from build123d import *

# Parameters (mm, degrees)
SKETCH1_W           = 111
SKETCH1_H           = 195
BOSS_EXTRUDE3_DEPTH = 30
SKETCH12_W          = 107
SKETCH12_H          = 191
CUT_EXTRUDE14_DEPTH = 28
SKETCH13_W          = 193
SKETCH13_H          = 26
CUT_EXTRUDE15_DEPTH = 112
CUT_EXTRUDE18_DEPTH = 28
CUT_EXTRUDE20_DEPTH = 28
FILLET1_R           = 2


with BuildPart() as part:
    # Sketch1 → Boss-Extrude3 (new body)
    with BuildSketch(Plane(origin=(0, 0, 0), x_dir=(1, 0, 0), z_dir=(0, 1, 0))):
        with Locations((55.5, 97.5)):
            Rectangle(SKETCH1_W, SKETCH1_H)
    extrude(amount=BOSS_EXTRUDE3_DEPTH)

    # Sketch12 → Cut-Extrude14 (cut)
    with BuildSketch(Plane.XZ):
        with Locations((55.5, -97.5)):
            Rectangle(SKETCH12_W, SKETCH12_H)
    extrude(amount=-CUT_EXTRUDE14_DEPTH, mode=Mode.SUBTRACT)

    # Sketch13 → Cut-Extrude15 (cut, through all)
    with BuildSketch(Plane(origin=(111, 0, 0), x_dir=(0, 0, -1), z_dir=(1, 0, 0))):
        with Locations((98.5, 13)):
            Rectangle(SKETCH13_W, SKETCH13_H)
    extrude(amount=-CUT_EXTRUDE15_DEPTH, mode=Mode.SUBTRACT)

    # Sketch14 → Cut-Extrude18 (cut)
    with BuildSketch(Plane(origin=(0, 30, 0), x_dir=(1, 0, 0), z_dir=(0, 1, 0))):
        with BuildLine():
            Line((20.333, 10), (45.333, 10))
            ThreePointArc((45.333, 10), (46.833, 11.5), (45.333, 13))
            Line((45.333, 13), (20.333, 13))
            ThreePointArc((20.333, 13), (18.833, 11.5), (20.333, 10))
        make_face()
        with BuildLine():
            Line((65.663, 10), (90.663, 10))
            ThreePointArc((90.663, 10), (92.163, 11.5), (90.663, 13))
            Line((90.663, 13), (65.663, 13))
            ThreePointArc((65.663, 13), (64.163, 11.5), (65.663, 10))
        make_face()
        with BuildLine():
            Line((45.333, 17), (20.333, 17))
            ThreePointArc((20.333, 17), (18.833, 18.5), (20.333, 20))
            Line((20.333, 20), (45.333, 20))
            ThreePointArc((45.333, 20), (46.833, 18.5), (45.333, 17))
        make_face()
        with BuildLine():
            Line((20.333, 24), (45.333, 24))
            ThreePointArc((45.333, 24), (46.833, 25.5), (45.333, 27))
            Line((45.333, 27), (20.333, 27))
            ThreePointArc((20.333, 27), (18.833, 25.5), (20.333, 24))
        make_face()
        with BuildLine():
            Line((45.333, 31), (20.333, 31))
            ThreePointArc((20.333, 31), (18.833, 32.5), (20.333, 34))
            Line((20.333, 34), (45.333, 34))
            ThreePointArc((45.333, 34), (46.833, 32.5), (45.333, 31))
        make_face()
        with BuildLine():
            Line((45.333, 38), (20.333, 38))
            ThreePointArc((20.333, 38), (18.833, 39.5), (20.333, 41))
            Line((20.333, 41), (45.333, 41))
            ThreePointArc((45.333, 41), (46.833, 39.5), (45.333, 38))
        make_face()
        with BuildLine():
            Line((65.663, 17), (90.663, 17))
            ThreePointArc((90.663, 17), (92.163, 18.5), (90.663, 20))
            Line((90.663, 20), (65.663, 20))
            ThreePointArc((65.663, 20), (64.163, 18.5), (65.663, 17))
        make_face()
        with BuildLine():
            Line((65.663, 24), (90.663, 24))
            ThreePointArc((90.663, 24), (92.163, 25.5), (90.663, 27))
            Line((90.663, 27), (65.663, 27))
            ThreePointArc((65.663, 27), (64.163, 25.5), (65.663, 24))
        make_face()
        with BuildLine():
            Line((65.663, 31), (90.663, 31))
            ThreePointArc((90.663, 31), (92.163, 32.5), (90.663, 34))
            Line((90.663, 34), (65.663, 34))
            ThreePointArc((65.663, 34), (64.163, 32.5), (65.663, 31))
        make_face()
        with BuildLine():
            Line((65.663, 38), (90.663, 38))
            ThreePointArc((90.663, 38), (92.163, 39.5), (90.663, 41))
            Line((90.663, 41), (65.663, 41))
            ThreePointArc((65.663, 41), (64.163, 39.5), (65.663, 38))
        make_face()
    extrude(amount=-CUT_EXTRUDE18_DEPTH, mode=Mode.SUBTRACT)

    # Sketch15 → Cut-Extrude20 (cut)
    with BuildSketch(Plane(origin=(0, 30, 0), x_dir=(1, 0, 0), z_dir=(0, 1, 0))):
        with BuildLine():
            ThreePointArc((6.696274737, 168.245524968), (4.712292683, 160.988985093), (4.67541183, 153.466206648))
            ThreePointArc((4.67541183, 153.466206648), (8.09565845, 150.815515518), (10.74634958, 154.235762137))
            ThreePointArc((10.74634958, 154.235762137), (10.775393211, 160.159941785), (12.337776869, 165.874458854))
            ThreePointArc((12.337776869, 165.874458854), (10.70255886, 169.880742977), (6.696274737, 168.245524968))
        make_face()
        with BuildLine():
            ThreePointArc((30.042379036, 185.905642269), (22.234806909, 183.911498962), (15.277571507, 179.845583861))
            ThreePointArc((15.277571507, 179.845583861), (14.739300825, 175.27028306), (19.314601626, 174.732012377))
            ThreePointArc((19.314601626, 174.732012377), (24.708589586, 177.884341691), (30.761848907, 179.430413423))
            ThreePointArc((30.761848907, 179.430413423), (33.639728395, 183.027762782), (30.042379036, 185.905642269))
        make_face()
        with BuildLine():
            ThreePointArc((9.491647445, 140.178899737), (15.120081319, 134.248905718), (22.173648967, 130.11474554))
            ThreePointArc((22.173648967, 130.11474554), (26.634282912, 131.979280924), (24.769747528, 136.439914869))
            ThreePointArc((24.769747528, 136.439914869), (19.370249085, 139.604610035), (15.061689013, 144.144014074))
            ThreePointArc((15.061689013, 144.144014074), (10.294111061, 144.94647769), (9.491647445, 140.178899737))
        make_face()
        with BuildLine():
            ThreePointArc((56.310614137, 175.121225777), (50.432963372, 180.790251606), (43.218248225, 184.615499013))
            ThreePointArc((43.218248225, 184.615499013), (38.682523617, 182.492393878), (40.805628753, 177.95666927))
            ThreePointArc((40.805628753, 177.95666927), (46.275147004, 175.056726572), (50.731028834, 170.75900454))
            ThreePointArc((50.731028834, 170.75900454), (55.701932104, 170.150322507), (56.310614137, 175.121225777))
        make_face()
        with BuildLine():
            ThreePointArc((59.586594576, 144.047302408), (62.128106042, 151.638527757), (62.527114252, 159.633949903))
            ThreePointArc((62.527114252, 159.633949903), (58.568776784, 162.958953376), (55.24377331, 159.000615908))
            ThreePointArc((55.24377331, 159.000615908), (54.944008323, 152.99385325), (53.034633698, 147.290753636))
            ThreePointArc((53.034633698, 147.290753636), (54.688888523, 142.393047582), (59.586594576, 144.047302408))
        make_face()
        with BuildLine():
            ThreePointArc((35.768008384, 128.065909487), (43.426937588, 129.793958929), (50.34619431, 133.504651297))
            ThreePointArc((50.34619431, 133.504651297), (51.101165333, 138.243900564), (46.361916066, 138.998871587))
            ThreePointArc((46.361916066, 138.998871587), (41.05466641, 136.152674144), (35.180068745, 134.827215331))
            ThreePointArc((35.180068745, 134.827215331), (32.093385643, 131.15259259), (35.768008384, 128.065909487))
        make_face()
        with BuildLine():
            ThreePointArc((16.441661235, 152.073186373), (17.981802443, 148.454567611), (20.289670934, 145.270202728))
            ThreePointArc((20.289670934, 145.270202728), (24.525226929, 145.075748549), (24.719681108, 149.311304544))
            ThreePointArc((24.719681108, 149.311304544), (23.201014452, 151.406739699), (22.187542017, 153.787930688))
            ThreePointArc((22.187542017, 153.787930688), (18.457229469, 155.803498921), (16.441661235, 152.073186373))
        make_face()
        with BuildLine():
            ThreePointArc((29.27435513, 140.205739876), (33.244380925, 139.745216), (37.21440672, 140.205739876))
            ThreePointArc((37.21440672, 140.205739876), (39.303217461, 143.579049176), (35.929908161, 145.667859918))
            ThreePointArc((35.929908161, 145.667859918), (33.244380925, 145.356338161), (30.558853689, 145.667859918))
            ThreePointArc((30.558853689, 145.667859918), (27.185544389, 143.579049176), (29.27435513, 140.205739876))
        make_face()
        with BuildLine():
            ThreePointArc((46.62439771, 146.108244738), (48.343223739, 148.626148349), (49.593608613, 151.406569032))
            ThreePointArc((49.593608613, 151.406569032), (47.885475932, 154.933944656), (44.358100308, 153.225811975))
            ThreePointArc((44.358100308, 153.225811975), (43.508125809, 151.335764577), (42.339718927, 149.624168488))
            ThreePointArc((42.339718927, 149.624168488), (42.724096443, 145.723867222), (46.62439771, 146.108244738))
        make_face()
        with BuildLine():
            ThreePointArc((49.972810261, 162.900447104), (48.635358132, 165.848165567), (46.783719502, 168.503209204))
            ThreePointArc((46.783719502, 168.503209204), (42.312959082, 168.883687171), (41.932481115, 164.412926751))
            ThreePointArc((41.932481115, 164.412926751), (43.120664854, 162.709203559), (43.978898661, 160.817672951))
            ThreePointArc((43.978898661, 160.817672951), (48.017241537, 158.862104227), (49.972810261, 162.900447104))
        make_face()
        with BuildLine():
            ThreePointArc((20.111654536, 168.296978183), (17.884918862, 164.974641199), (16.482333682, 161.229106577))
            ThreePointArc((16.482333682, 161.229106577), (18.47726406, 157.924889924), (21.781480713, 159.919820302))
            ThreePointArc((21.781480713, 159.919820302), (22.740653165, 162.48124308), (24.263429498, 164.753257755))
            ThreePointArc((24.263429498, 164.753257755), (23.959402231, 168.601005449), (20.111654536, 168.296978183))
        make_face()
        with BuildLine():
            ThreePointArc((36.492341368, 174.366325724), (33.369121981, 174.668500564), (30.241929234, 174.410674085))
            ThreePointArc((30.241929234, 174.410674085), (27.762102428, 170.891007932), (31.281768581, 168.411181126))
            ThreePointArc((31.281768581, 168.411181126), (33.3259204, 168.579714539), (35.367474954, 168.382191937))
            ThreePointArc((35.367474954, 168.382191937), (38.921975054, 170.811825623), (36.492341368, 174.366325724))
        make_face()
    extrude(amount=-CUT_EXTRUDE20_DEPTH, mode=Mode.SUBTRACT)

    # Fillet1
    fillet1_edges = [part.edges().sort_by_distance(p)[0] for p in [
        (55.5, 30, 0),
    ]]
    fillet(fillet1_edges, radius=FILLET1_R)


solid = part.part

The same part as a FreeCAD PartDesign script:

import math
import FreeCAD as App
import Part
import Sketcher
from FreeCAD import Vector
Q = App.Units.Quantity


def edges_at(feature, points):
    """Names of the edges that pass closest to the given points."""
    edges = feature.Shape.Edges
    near = lambda p: min(range(len(edges)), key=lambda i: edges[i].distToShape(Part.Vertex(*p))[0])
    return sorted({f"Edge{near(p) + 1}" for p in points})

doc = App.newDocument("Part")
body = doc.addObject("PartDesign::Body", "Body")

# Sketch on XZ plane
sketch1 = body.newObject("Sketcher::SketchObject", "Sketch")
sketch1.AttachmentSupport = (doc.getObject("XZ_Plane"), [""])
sketch1.MapMode = "FlatFace"
sketch1.addGeometry([
    Part.LineSegment(Vector(0, -195, 0), Vector(0, 0, 0)),
    Part.LineSegment(Vector(0, 0, 0), Vector(111, 0, 0)),
    Part.LineSegment(Vector(111, 0, 0), Vector(111, -195, 0)),
    Part.LineSegment(Vector(111, -195, 0), Vector(0, -195, 0)),
], False)
sketch1.addConstraint([
    Sketcher.Constraint("Coincident", 0, 2, 1, 1),
    Sketcher.Constraint("Coincident", 1, 2, 2, 1),
    Sketcher.Constraint("Coincident", 2, 2, 3, 1),
    Sketcher.Constraint("Coincident", 3, 2, 0, 1),
    Sketcher.Constraint("Vertical", 0),
    Sketcher.Constraint("Horizontal", 1),
    Sketcher.Constraint("Vertical", 2),
    Sketcher.Constraint("Horizontal", 3),
    Sketcher.Constraint("Coincident", 0, 2, -1, 1),
    Sketcher.Constraint("DistanceX", 1, 1, 1, 2, Q("111 mm")),
    Sketcher.Constraint("DistanceY", 0, 1, 0, 2, Q("195 mm")),
])
pad1 = body.newObject("PartDesign::Pad", "Pad")
pad1.Profile = sketch1
pad1.Length = 30
pad1.Reversed = True

# Sketch on XZ plane
sketch2 = body.newObject("Sketcher::SketchObject", "Sketch001")
sketch2.AttachmentSupport = (doc.getObject("XZ_Plane"), [""])
sketch2.MapMode = "FlatFace"
sketch2.addGeometry([
    Part.LineSegment(Vector(2, -2, 0), Vector(2, -193, 0)),
    Part.LineSegment(Vector(2, -193, 0), Vector(109, -193, 0)),
    Part.LineSegment(Vector(109, -193, 0), Vector(109, -2, 0)),
    Part.LineSegment(Vector(109, -2, 0), Vector(2, -2, 0)),
], False)
sketch2.addConstraint([
    Sketcher.Constraint("Coincident", 0, 2, 1, 1),
    Sketcher.Constraint("Coincident", 1, 2, 2, 1),
    Sketcher.Constraint("Coincident", 2, 2, 3, 1),
    Sketcher.Constraint("Coincident", 3, 2, 0, 1),
    Sketcher.Constraint("Vertical", 0),
    Sketcher.Constraint("Horizontal", 1),
    Sketcher.Constraint("Vertical", 2),
    Sketcher.Constraint("Horizontal", 3),
    Sketcher.Constraint("DistanceX", 1, 1, 1, 2, Q("107 mm")),
    Sketcher.Constraint("DistanceY", 0, 2, 0, 1, Q("191 mm")),
    Sketcher.Constraint("DistanceX", -1, 1, 0, 2, Q("2 mm")),
    Sketcher.Constraint("DistanceY", 0, 2, -1, 1, Q("193 mm")),
])
pocket1 = body.newObject("PartDesign::Pocket", "Pocket")
pocket1.Profile = sketch2
pocket1.Length = 28

# Sketch on YZ plane
sketch3 = body.newObject("Sketcher::SketchObject", "Sketch002")
sketch3.AttachmentSupport = (doc.getObject("YZ_Plane"), [""])
sketch3.MapMode = "FlatFace"
sketch3.AttachmentOffset = App.Placement(Vector(0, 0, 111), App.Rotation())
sketch3.addGeometry([
    Part.LineSegment(Vector(26, -2, 0), Vector(0, -2, 0)),
    Part.LineSegment(Vector(0, -2, 0), Vector(0, -195, 0)),
    Part.LineSegment(Vector(0, -195, 0), Vector(26, -195, 0)),
    Part.LineSegment(Vector(26, -195, 0), Vector(26, -2, 0)),
], False)
sketch3.addConstraint([
    Sketcher.Constraint("Coincident", 0, 2, 1, 1),
    Sketcher.Constraint("Coincident", 1, 2, 2, 1),
    Sketcher.Constraint("Coincident", 2, 2, 3, 1),
    Sketcher.Constraint("Coincident", 3, 2, 0, 1),
    Sketcher.Constraint("Horizontal", 0),
    Sketcher.Constraint("Vertical", 1),
    Sketcher.Constraint("Horizontal", 2),
    Sketcher.Constraint("Vertical", 3),
    Sketcher.Constraint("PointOnObject", 0, 2, -2),
    Sketcher.Constraint("DistanceX", 0, 2, 0, 1, Q("26 mm")),
    Sketcher.Constraint("DistanceY", 1, 2, 1, 1, Q("193 mm")),
    Sketcher.Constraint("DistanceY", 0, 2, -1, 1, Q("2 mm")),
])
pocket2 = body.newObject("PartDesign::Pocket", "Pocket001")
pocket2.Profile = sketch3
pocket2.Type = "ThroughAll"

# Sketch on XZ plane
sketch4 = body.newObject("Sketcher::SketchObject", "Sketch003")
sketch4.AttachmentSupport = (doc.getObject("XZ_Plane"), [""])
sketch4.MapMode = "FlatFace"
sketch4.AttachmentOffset = App.Placement(Vector(0, 0, -30), App.Rotation())
sketch4.addGeometry([
    Part.LineSegment(Vector(20.333, -10, 0), Vector(45.333, -10, 0)),  # 0
    Part.ArcOfCircle(Part.Circle(Vector(45.333, -11.5, 0), Vector(0, 0, 1), 1.5), math.radians(-90), math.radians(90)),  # 1
    Part.LineSegment(Vector(45.333, -13, 0), Vector(20.333, -13, 0)),  # 2
    Part.ArcOfCircle(Part.Circle(Vector(20.333, -11.5, 0), Vector(0, 0, 1), 1.5), math.radians(90), math.radians(270)),  # 3
    Part.LineSegment(Vector(65.663, -10, 0), Vector(90.663, -10, 0)),  # 4
    Part.ArcOfCircle(Part.Circle(Vector(90.663, -11.5, 0), Vector(0, 0, 1), 1.5), math.radians(-90), math.radians(90)),  # 5
    Part.LineSegment(Vector(90.663, -13, 0), Vector(65.663, -13, 0)),  # 6
    Part.ArcOfCircle(Part.Circle(Vector(65.663, -11.5, 0), Vector(0, 0, 1), 1.5), math.radians(90), math.radians(270)),  # 7
    Part.LineSegment(Vector(20.333, -17, 0), Vector(45.333, -17, 0)),  # 8
    Part.ArcOfCircle(Part.Circle(Vector(45.333, -18.5, 0), Vector(0, 0, 1), 1.5), math.radians(-90), math.radians(90)),  # 9
    Part.LineSegment(Vector(45.333, -20, 0), Vector(20.333, -20, 0)),  # 10
    Part.ArcOfCircle(Part.Circle(Vector(20.333, -18.5, 0), Vector(0, 0, 1), 1.5), math.radians(90), math.radians(270)),  # 11
    Part.LineSegment(Vector(20.333, -24, 0), Vector(45.333, -24, 0)),  # 12
    Part.ArcOfCircle(Part.Circle(Vector(45.333, -25.5, 0), Vector(0, 0, 1), 1.5), math.radians(-90), math.radians(90)),  # 13
    Part.LineSegment(Vector(45.333, -27, 0), Vector(20.333, -27, 0)),  # 14
    Part.ArcOfCircle(Part.Circle(Vector(20.333, -25.5, 0), Vector(0, 0, 1), 1.5), math.radians(90), math.radians(270)),  # 15
    Part.LineSegment(Vector(20.333, -31, 0), Vector(45.333, -31, 0)),  # 16
    Part.ArcOfCircle(Part.Circle(Vector(45.333, -32.5, 0), Vector(0, 0, 1), 1.5), math.radians(-90), math.radians(90)),  # 17
    Part.LineSegment(Vector(45.333, -34, 0), Vector(20.333, -34, 0)),  # 18
    Part.ArcOfCircle(Part.Circle(Vector(20.333, -32.5, 0), Vector(0, 0, 1), 1.5), math.radians(90), math.radians(270)),  # 19
    Part.LineSegment(Vector(20.333, -38, 0), Vector(45.333, -38, 0)),  # 20
    Part.ArcOfCircle(Part.Circle(Vector(45.333, -39.5, 0), Vector(0, 0, 1), 1.5), math.radians(-90), math.radians(90)),  # 21
    Part.LineSegment(Vector(45.333, -41, 0), Vector(20.333, -41, 0)),  # 22
    Part.ArcOfCircle(Part.Circle(Vector(20.333, -39.5, 0), Vector(0, 0, 1), 1.5), math.radians(90), math.radians(270)),  # 23
    Part.LineSegment(Vector(65.663, -17, 0), Vector(90.663, -17, 0)),  # 24
    Part.ArcOfCircle(Part.Circle(Vector(90.663, -18.5, 0), Vector(0, 0, 1), 1.5), math.radians(-90), math.radians(90)),  # 25
    Part.LineSegment(Vector(90.663, -20, 0), Vector(65.663, -20, 0)),  # 26
    Part.ArcOfCircle(Part.Circle(Vector(65.663, -18.5, 0), Vector(0, 0, 1), 1.5), math.radians(90), math.radians(270)),  # 27
    Part.LineSegment(Vector(65.663, -24, 0), Vector(90.663, -24, 0)),  # 28
    Part.ArcOfCircle(Part.Circle(Vector(90.663, -25.5, 0), Vector(0, 0, 1), 1.5), math.radians(-90), math.radians(90)),  # 29
    Part.LineSegment(Vector(90.663, -27, 0), Vector(65.663, -27, 0)),  # 30
    Part.ArcOfCircle(Part.Circle(Vector(65.663, -25.5, 0), Vector(0, 0, 1), 1.5), math.radians(90), math.radians(270)),  # 31
    Part.LineSegment(Vector(65.663, -31, 0), Vector(90.663, -31, 0)),  # 32
    Part.ArcOfCircle(Part.Circle(Vector(90.663, -32.5, 0), Vector(0, 0, 1), 1.5), math.radians(-90), math.radians(90)),  # 33
    Part.LineSegment(Vector(90.663, -34, 0), Vector(65.663, -34, 0)),  # 34
    Part.ArcOfCircle(Part.Circle(Vector(65.663, -32.5, 0), Vector(0, 0, 1), 1.5), math.radians(90), math.radians(270)),  # 35
    Part.LineSegment(Vector(65.663, -38, 0), Vector(90.663, -38, 0)),  # 36
    Part.ArcOfCircle(Part.Circle(Vector(90.663, -39.5, 0), Vector(0, 0, 1), 1.5), math.radians(-90), math.radians(90)),  # 37
    Part.LineSegment(Vector(90.663, -41, 0), Vector(65.663, -41, 0)),  # 38
    Part.ArcOfCircle(Part.Circle(Vector(65.663, -39.5, 0), Vector(0, 0, 1), 1.5), math.radians(90), math.radians(270)),  # 39
], False)
sketch4.addConstraint([
    Sketcher.Constraint("Tangent", 0, 2, 1, 2),
    Sketcher.Constraint("Tangent", 1, 1, 2, 1),
    Sketcher.Constraint("Tangent", 2, 2, 3, 2),
    Sketcher.Constraint("Tangent", 3, 1, 0, 1),
    Sketcher.Constraint("Tangent", 4, 2, 5, 2),
    Sketcher.Constraint("Tangent", 5, 1, 6, 1),
    Sketcher.Constraint("Tangent", 6, 2, 7, 2),
    Sketcher.Constraint("Tangent", 7, 1, 4, 1),
    Sketcher.Constraint("Tangent", 8, 2, 9, 2),
    Sketcher.Constraint("Tangent", 9, 1, 10, 1),
    Sketcher.Constraint("Tangent", 10, 2, 11, 2),
    Sketcher.Constraint("Tangent", 11, 1, 8, 1),
    Sketcher.Constraint("Tangent", 12, 2, 13, 2),
    Sketcher.Constraint("Tangent", 13, 1, 14, 1),
    Sketcher.Constraint("Tangent", 14, 2, 15, 2),
    Sketcher.Constraint("Tangent", 15, 1, 12, 1),
    Sketcher.Constraint("Tangent", 16, 2, 17, 2),
    Sketcher.Constraint("Tangent", 17, 1, 18, 1),
    Sketcher.Constraint("Tangent", 18, 2, 19, 2),
    Sketcher.Constraint("Tangent", 19, 1, 16, 1),
    Sketcher.Constraint("Tangent", 20, 2, 21, 2),
    Sketcher.Constraint("Tangent", 21, 1, 22, 1),
    Sketcher.Constraint("Tangent", 22, 2, 23, 2),
    Sketcher.Constraint("Tangent", 23, 1, 20, 1),
    Sketcher.Constraint("Tangent", 24, 2, 25, 2),
    Sketcher.Constraint("Tangent", 25, 1, 26, 1),
    Sketcher.Constraint("Tangent", 26, 2, 27, 2),
    Sketcher.Constraint("Tangent", 27, 1, 24, 1),
    Sketcher.Constraint("Tangent", 28, 2, 29, 2),
    Sketcher.Constraint("Tangent", 29, 1, 30, 1),
    Sketcher.Constraint("Tangent", 30, 2, 31, 2),
    Sketcher.Constraint("Tangent", 31, 1, 28, 1),
    Sketcher.Constraint("Tangent", 32, 2, 33, 2),
    Sketcher.Constraint("Tangent", 33, 1, 34, 1),
    Sketcher.Constraint("Tangent", 34, 2, 35, 2),
    Sketcher.Constraint("Tangent", 35, 1, 32, 1),
    Sketcher.Constraint("Tangent", 36, 2, 37, 2),
    Sketcher.Constraint("Tangent", 37, 1, 38, 1),
    Sketcher.Constraint("Tangent", 38, 2, 39, 2),
    Sketcher.Constraint("Tangent", 39, 1, 36, 1),
    Sketcher.Constraint("Horizontal", 0),
    Sketcher.Constraint("Horizontal", 2),
    Sketcher.Constraint("Horizontal", 4),
    Sketcher.Constraint("Horizontal", 6),
    Sketcher.Constraint("Horizontal", 8),
    Sketcher.Constraint("Horizontal", 10),
    Sketcher.Constraint("Horizontal", 12),
    Sketcher.Constraint("Horizontal", 14),
    Sketcher.Constraint("Horizontal", 16),
    Sketcher.Constraint("Horizontal", 18),
    Sketcher.Constraint("Horizontal", 20),
    Sketcher.Constraint("Horizontal", 22),
    Sketcher.Constraint("Horizontal", 24),
    Sketcher.Constraint("Horizontal", 26),
    Sketcher.Constraint("Horizontal", 28),
    Sketcher.Constraint("Horizontal", 30),
    Sketcher.Constraint("Horizontal", 32),
    Sketcher.Constraint("Horizontal", 34),
    Sketcher.Constraint("Horizontal", 36),
    Sketcher.Constraint("Horizontal", 38),
    Sketcher.Constraint("Equal", 3, 5),
    Sketcher.Constraint("Equal", 7, 9),
    Sketcher.Constraint("Equal", 11, 13),
    Sketcher.Constraint("Equal", 15, 17),
    Sketcher.Constraint("Equal", 19, 21),
    Sketcher.Constraint("Equal", 23, 25),
    Sketcher.Constraint("Equal", 27, 29),
    Sketcher.Constraint("Equal", 31, 33),
    Sketcher.Constraint("Equal", 35, 37),
    Sketcher.Constraint("Horizontal", 3, 3, 5, 3),
    Sketcher.Constraint("Horizontal", 11, 3, 25, 3),
    Sketcher.Constraint("Horizontal", 15, 3, 29, 3),
    Sketcher.Constraint("Horizontal", 19, 3, 33, 3),
    Sketcher.Constraint("Horizontal", 23, 3, 37, 3),
    Sketcher.Constraint("Vertical", 1, 3, 9, 3),
    Sketcher.Constraint("Vertical", 3, 3, 11, 3),
    Sketcher.Constraint("Vertical", 9, 3, 13, 3),
    Sketcher.Constraint("Vertical", 11, 3, 15, 3),
    Sketcher.Constraint("Vertical", 13, 3, 17, 3),
    Sketcher.Constraint("Vertical", 15, 3, 19, 3),
    Sketcher.Constraint("Vertical", 17, 3, 21, 3),
    Sketcher.Constraint("Vertical", 19, 3, 23, 3),
    Sketcher.Constraint("Vertical", 5, 3, 25, 3),
    Sketcher.Constraint("Vertical", 7, 3, 27, 3),
    Sketcher.Constraint("Vertical", 25, 3, 29, 3),
    Sketcher.Constraint("Vertical", 27, 3, 31, 3),
    Sketcher.Constraint("Vertical", 29, 3, 33, 3),
    Sketcher.Constraint("Vertical", 31, 3, 35, 3),
    Sketcher.Constraint("Vertical", 33, 3, 37, 3),
    Sketcher.Constraint("Vertical", 35, 3, 39, 3),
    Sketcher.Constraint("Equal", 2, 4),
    Sketcher.Constraint("Radius", 1, Q("1.5 mm")),
    Sketcher.Constraint("DistanceX", 0, 1, 0, 2, Q("25 mm")),
    Sketcher.Constraint("DistanceY", 0, 2, -1, 1, Q("10 mm")),
    Sketcher.Constraint("DistanceY", 8, 2, -1, 1, Q("17 mm")),
    Sketcher.Constraint("DistanceY", 12, 2, -1, 1, Q("24 mm")),
    Sketcher.Constraint("DistanceY", 16, 2, -1, 1, Q("31 mm")),
    Sketcher.Constraint("DistanceY", 20, 2, -1, 1, Q("38 mm")),
    Sketcher.Constraint("DistanceX", 1, 3, 5, 3, Q("45.33 mm")),
    Sketcher.Constraint("DistanceX", -1, 1, 1, 3, Q("45.333 mm")),
])
pocket3 = body.newObject("PartDesign::Pocket", "Pocket002")
pocket3.Profile = sketch4
pocket3.Length = 28
pocket3.Reversed = True

# Sketch on XZ plane
sketch5 = body.newObject("Sketcher::SketchObject", "Sketch004")
sketch5.AttachmentSupport = (doc.getObject("XZ_Plane"), [""])
sketch5.MapMode = "FlatFace"
sketch5.AttachmentOffset = App.Placement(Vector(0, 0, -30), App.Rotation())
sketch5.addGeometry([
    Part.ArcOfCircle(Part.Circle(Vector(33.244381, -157.087625, 0), Vector(0, 0, 1), 28.797581), math.radians(172.775684), math.radians(202.796521)),  # 0
    Part.ArcOfCircle(Part.Circle(Vector(7.710881, -153.850984, 0), Vector(0, 0, 1), 3.059759), math.radians(-7.224316), math.radians(172.775684)),  # 1
    Part.ArcOfCircle(Part.Circle(Vector(33.244381, -157.087625, 0), Vector(0, 0, 1), 22.678063), math.radians(172.775684), math.radians(202.796521)),  # 2
    Part.ArcOfCircle(Part.Circle(Vector(9.517026, -167.059992, 0), Vector(0, 0, 1), 3.059759), math.radians(-157.203479), math.radians(22.796521)),  # 3
    Part.ArcOfCircle(Part.Circle(Vector(33.244381, -157.087625, 0), Vector(0, 0, 1), 28.99536), math.radians(-128.290163), math.radians(-96.340192)),  # 4
    Part.ArcOfCircle(Part.Circle(Vector(17.296087, -177.288798, 0), Vector(0, 0, 1), 3.257538), math.radians(51.709837), math.radians(231.709837)),  # 5
    Part.ArcOfCircle(Part.Circle(Vector(33.244381, -157.087625, 0), Vector(0, 0, 1), 22.480284), math.radians(-128.290163), math.radians(-96.340192)),  # 6
    Part.ArcOfCircle(Part.Circle(Vector(30.402114, -182.668028, 0), Vector(0, 0, 1), 3.257538), math.radians(-96.340192), math.radians(83.659808)),  # 7
    Part.ArcOfCircle(Part.Circle(Vector(33.244381, -157.087625, 0), Vector(0, 0, 1), 29.156429), math.radians(112.315177), math.radians(144.55429)),  # 8
    Part.ArcOfCircle(Part.Circle(Vector(23.471698, -133.27733, 0), Vector(0, 0, 1), 3.418607), math.radians(-67.684823), math.radians(112.315177)),  # 9
    Part.ArcOfCircle(Part.Circle(Vector(33.244381, -157.087625, 0), Vector(0, 0, 1), 22.319215), math.radians(112.315177), math.radians(144.55429)),  # 10
    Part.ArcOfCircle(Part.Circle(Vector(12.276668, -142.161457, 0), Vector(0, 0, 1), 3.418607), math.radians(144.55429), math.radians(324.55429)),  # 11
    Part.ArcOfCircle(Part.Circle(Vector(33.244381, -157.087625, 0), Vector(0, 0, 1), 29.279035), math.radians(-70.083594), math.radians(-38.018943)),  # 12
    Part.ArcOfCircle(Part.Circle(Vector(42.011938, -181.286084, 0), Vector(0, 0, 1), 3.541213), math.radians(109.916406), math.radians(289.916406)),  # 13
    Part.ArcOfCircle(Part.Circle(Vector(33.244381, -157.087625, 0), Vector(0, 0, 1), 22.196609), math.radians(-70.083594), math.radians(-38.018943)),  # 14
    Part.ArcOfCircle(Part.Circle(Vector(53.520821, -172.940115, 0), Vector(0, 0, 1), 3.541213), math.radians(-38.018943), math.radians(141.981057)),  # 15
    Part.ArcOfCircle(Part.Circle(Vector(33.244381, -157.087625, 0), Vector(0, 0, 1), 29.393235), math.radians(-4.969741), math.radians(26.33703)),  # 16
    Part.ArcOfCircle(Part.Circle(Vector(58.885444, -159.317283, 0), Vector(0, 0, 1), 3.655413), math.radians(175.030259), math.radians(355.030259)),  # 17
    Part.ArcOfCircle(Part.Circle(Vector(33.244381, -157.087625, 0), Vector(0, 0, 1), 22.082409), math.radians(-4.969741), math.radians(26.33703)),  # 18
    Part.ArcOfCircle(Part.Circle(Vector(56.310614, -145.669028, 0), Vector(0, 0, 1), 3.655413), math.radians(26.33703), math.radians(206.33703)),  # 19
    Part.ArcOfCircle(Part.Circle(Vector(33.244381, -157.087625, 0), Vector(0, 0, 1), 29.131232), math.radians(54.051268), math.radians(85.030259)),  # 20
    Part.ArcOfCircle(Part.Circle(Vector(48.354055, -136.251761, 0), Vector(0, 0, 1), 3.39341), math.radians(-125.948732), math.radians(54.051268)),  # 21
    Part.ArcOfCircle(Part.Circle(Vector(33.244381, -157.087625, 0), Vector(0, 0, 1), 22.344412), math.radians(54.051268), math.radians(85.030259)),  # 22
    Part.ArcOfCircle(Part.Circle(Vector(35.474039, -131.446562, 0), Vector(0, 0, 1), 3.39341), math.radians(85.030259), math.radians(265.030259)),  # 23
    Part.ArcOfCircle(Part.Circle(Vector(33.244381, -157.087625, 0), Vector(0, 0, 1), 17.534993), math.radians(137.628601), math.radians(163.383308)),  # 24
    Part.ArcOfCircle(Part.Circle(Vector(22.504676, -147.290754, 0), Vector(0, 0, 1), 2.998145), math.radians(-42.371399), math.radians(137.628601)),  # 25
    Part.ArcOfCircle(Part.Circle(Vector(33.244381, -157.087625, 0), Vector(0, 0, 1), 11.538703), math.radians(137.628601), math.radians(163.383308)),  # 26
    Part.ArcOfCircle(Part.Circle(Vector(19.314602, -152.930559, 0), Vector(0, 0, 1), 2.998145), math.radians(163.383308), math.radians(343.383308)),  # 27
    Part.ArcOfCircle(Part.Circle(Vector(33.244381, -157.087625, 0), Vector(0, 0, 1), 17.342409), math.radians(76.766499), math.radians(103.233501)),  # 28
    Part.ArcOfCircle(Part.Circle(Vector(36.572157, -142.9368, 0), Vector(0, 0, 1), 2.805561), math.radians(-103.233501), math.radians(76.766499)),  # 29
    Part.ArcOfCircle(Part.Circle(Vector(33.244381, -157.087625, 0), Vector(0, 0, 1), 11.731287), math.radians(76.766499), math.radians(103.233501)),  # 30
    Part.ArcOfCircle(Part.Circle(Vector(29.916604, -142.9368, 0), Vector(0, 0, 1), 2.805561), math.radians(103.233501), math.radians(283.233501)),  # 31
    Part.ArcOfCircle(Part.Circle(Vector(33.244381, -157.087625, 0), Vector(0, 0, 1), 17.308138), math.radians(19.1614), math.radians(39.371634)),  # 32
    Part.ArcOfCircle(Part.Circle(Vector(46.975854, -152.316191, 0), Vector(0, 0, 1), 2.77129), math.radians(-160.8386), math.radians(19.1614)),  # 33
    Part.ArcOfCircle(Part.Circle(Vector(33.244381, -157.087625, 0), Vector(0, 0, 1), 11.765558), math.radians(19.1614), math.radians(39.371634)),  # 34
    Part.ArcOfCircle(Part.Circle(Vector(44.482058, -147.866207, 0), Vector(0, 0, 1), 2.77129), math.radians(39.371634), math.radians(219.371634)),  # 35
    Part.ArcOfCircle(Part.Circle(Vector(33.244381, -157.087625, 0), Vector(0, 0, 1), 17.709581), math.radians(-40.135642), math.radians(-19.1614)),  # 36
    Part.ArcOfCircle(Part.Circle(Vector(44.3581, -166.458068, 0), Vector(0, 0, 1), 3.172732), math.radians(139.864358), math.radians(319.864358)),  # 37
    Part.ArcOfCircle(Part.Circle(Vector(33.244381, -157.087625, 0), Vector(0, 0, 1), 11.364116), math.radians(-40.135642), math.radians(-19.1614)),  # 38
    Part.ArcOfCircle(Part.Circle(Vector(46.975854, -161.85906, 0), Vector(0, 0, 1), 3.172732), math.radians(-19.1614), math.radians(160.8386)),  # 39
    Part.ArcOfCircle(Part.Circle(Vector(33.244381, -157.087625, 0), Vector(0, 0, 1), 17.266097), math.radians(-166.121602), math.radians(-139.517802)),  # 40
    Part.ArcOfCircle(Part.Circle(Vector(19.131907, -160.574463, 0), Vector(0, 0, 1), 2.729249), math.radians(13.878398), math.radians(193.878398)),  # 41
    Part.ArcOfCircle(Part.Circle(Vector(33.244381, -157.087625, 0), Vector(0, 0, 1), 11.8076), math.radians(-166.121602), math.radians(-139.517802)),  # 42
    Part.ArcOfCircle(Part.Circle(Vector(22.187542, -166.525118, 0), Vector(0, 0, 1), 2.729249), math.radians(-139.517802), math.radians(40.482198)),  # 43
    Part.ArcOfCircle(Part.Circle(Vector(33.244381, -157.087625, 0), Vector(0, 0, 1), 17.581318), math.radians(-99.832889), math.radians(-79.354066)),  # 44
    Part.ArcOfCircle(Part.Circle(Vector(30.761849, -171.410928, 0), Vector(0, 0, 1), 3.04447), math.radians(80.167111), math.radians(260.167111)),  # 45
    Part.ArcOfCircle(Part.Circle(Vector(33.244381, -157.087625, 0), Vector(0, 0, 1), 11.492379), math.radians(-99.832889), math.radians(-79.354066)),  # 46
    Part.ArcOfCircle(Part.Circle(Vector(35.929908, -171.374259, 0), Vector(0, 0, 1), 3.04447), math.radians(-79.354066), math.radians(100.645934)),  # 47
], False)
sketch5.addConstraint([
    Sketcher.Constraint("Tangent", 0, 1, 1, 2),
    Sketcher.Constraint("Tangent", 1, 1, 2, 1),
    Sketcher.Constraint("Tangent", 2, 2, 3, 2),
    Sketcher.Constraint("Tangent", 3, 1, 0, 2),
    Sketcher.Constraint("Tangent", 4, 1, 5, 2),
    Sketcher.Constraint("Tangent", 5, 1, 6, 1),
    Sketcher.Constraint("Tangent", 6, 2, 7, 2),
    Sketcher.Constraint("Tangent", 7, 1, 4, 2),
    Sketcher.Constraint("Tangent", 8, 1, 9, 2),
    Sketcher.Constraint("Tangent", 9, 1, 10, 1),
    Sketcher.Constraint("Tangent", 10, 2, 11, 2),
    Sketcher.Constraint("Tangent", 11, 1, 8, 2),
    Sketcher.Constraint("Tangent", 12, 1, 13, 2),
    Sketcher.Constraint("Tangent", 13, 1, 14, 1),
    Sketcher.Constraint("Tangent", 14, 2, 15, 2),
    Sketcher.Constraint("Tangent", 15, 1, 12, 2),
    Sketcher.Constraint("Tangent", 16, 1, 17, 2),
    Sketcher.Constraint("Tangent", 17, 1, 18, 1),
    Sketcher.Constraint("Tangent", 18, 2, 19, 2),
    Sketcher.Constraint("Tangent", 19, 1, 16, 2),
    Sketcher.Constraint("Tangent", 20, 1, 21, 2),
    Sketcher.Constraint("Tangent", 21, 1, 22, 1),
    Sketcher.Constraint("Tangent", 22, 2, 23, 2),
    Sketcher.Constraint("Tangent", 23, 1, 20, 2),
    Sketcher.Constraint("Tangent", 24, 1, 25, 2),
    Sketcher.Constraint("Tangent", 25, 1, 26, 1),
    Sketcher.Constraint("Tangent", 26, 2, 27, 2),
    Sketcher.Constraint("Tangent", 27, 1, 24, 2),
    Sketcher.Constraint("Tangent", 28, 1, 29, 2),
    Sketcher.Constraint("Tangent", 29, 1, 30, 1),
    Sketcher.Constraint("Tangent", 30, 2, 31, 2),
    Sketcher.Constraint("Tangent", 31, 1, 28, 2),
    Sketcher.Constraint("Tangent", 32, 1, 33, 2),
    Sketcher.Constraint("Tangent", 33, 1, 34, 1),
    Sketcher.Constraint("Tangent", 34, 2, 35, 2),
    Sketcher.Constraint("Tangent", 35, 1, 32, 2),
    Sketcher.Constraint("Tangent", 36, 1, 37, 2),
    Sketcher.Constraint("Tangent", 37, 1, 38, 1),
    Sketcher.Constraint("Tangent", 38, 2, 39, 2),
    Sketcher.Constraint("Tangent", 39, 1, 36, 2),
    Sketcher.Constraint("Tangent", 40, 1, 41, 2),
    Sketcher.Constraint("Tangent", 41, 1, 42, 1),
    Sketcher.Constraint("Tangent", 42, 2, 43, 2),
    Sketcher.Constraint("Tangent", 43, 1, 40, 2),
    Sketcher.Constraint("Tangent", 44, 1, 45, 2),
    Sketcher.Constraint("Tangent", 45, 1, 46, 1),
    Sketcher.Constraint("Tangent", 46, 2, 47, 2),
    Sketcher.Constraint("Tangent", 47, 1, 44, 2),
    Sketcher.Constraint("Coincident", 2, 3, 0, 3),
    Sketcher.Constraint("Coincident", 4, 3, 0, 3),
    Sketcher.Constraint("Coincident", 6, 3, 0, 3),
    Sketcher.Constraint("Coincident", 8, 3, 0, 3),
    Sketcher.Constraint("Coincident", 10, 3, 0, 3),
    Sketcher.Constraint("Coincident", 12, 3, 0, 3),
    Sketcher.Constraint("Coincident", 14, 3, 0, 3),
    Sketcher.Constraint("Coincident", 16, 3, 0, 3),
    Sketcher.Constraint("Coincident", 18, 3, 0, 3),
    Sketcher.Constraint("Coincident", 20, 3, 0, 3),
    Sketcher.Constraint("Coincident", 22, 3, 0, 3),
    Sketcher.Constraint("Coincident", 24, 3, 0, 3),
    Sketcher.Constraint("Coincident", 26, 3, 0, 3),
    Sketcher.Constraint("Coincident", 28, 3, 0, 3),
    Sketcher.Constraint("Coincident", 30, 3, 0, 3),
    Sketcher.Constraint("Coincident", 32, 3, 0, 3),
    Sketcher.Constraint("Coincident", 34, 3, 0, 3),
    Sketcher.Constraint("Coincident", 36, 3, 0, 3),
    Sketcher.Constraint("Coincident", 38, 3, 0, 3),
    Sketcher.Constraint("Coincident", 40, 3, 0, 3),
    Sketcher.Constraint("Coincident", 42, 3, 0, 3),
    Sketcher.Constraint("Coincident", 44, 3, 0, 3),
    Sketcher.Constraint("Coincident", 46, 3, 0, 3),
    Sketcher.Constraint("Horizontal", 29, 3, 31, 3),
    Sketcher.Constraint("Horizontal", 25, 3, 18, 2),
    Sketcher.Constraint("Vertical", 33, 3, 39, 3),
    Sketcher.Constraint("Vertical", 27, 3, 5, 1),
    Sketcher.Constraint("Vertical", 45, 3, 6, 2),
    Sketcher.Constraint("Vertical", 19, 3, 15, 1),
    Sketcher.Constraint("Vertical", 43, 3, 26, 2),
    Sketcher.Constraint("Vertical", 47, 3, 29, 1),
    Sketcher.Constraint("Vertical", 37, 3, 33, 1),
    Sketcher.Constraint("Radius", 42, Q("11.8076 mm")),
    Sketcher.Constraint("Radius", 0, Q("28.797581 mm")),
    Sketcher.Constraint("Radius", 1, Q("3.059759 mm")),
    Sketcher.Constraint("Radius", 4, Q("28.99536 mm")),
    Sketcher.Constraint("Radius", 5, Q("3.257538 mm")),
    Sketcher.Constraint("Radius", 8, Q("29.156429 mm")),
    Sketcher.Constraint("Radius", 14, Q("22.196609 mm")),
    Sketcher.Constraint("Radius", 18, Q("22.082409 mm")),
    Sketcher.Constraint("Radius", 21, Q("3.39341 mm")),
    Sketcher.Constraint("Radius", 22, Q("22.344412 mm")),
    Sketcher.Constraint("Radius", 28, Q("17.342409 mm")),
    Sketcher.Constraint("Radius", 29, Q("2.805561 mm")),
    Sketcher.Constraint("Radius", 32, Q("17.308138 mm")),
    Sketcher.Constraint("Radius", 33, Q("2.77129 mm")),
    Sketcher.Constraint("Radius", 36, Q("17.709581 mm")),
    Sketcher.Constraint("Radius", 41, Q("2.729249 mm")),
    Sketcher.Constraint("Radius", 45, Q("3.04447 mm")),
    Sketcher.Constraint("Radius", 46, Q("11.492379 mm")),
    Sketcher.Constraint("Radius", 9, Q("3.418607 mm")),
    Sketcher.Constraint("Radius", 12, Q("29.279035 mm")),
    Sketcher.Constraint("Radius", 16, Q("29.393235 mm")),
    Sketcher.Constraint("Radius", 24, Q("17.534993 mm")),
    Sketcher.Constraint("Radius", 25, Q("2.998145 mm")),
    Sketcher.Constraint("Radius", 37, Q("3.172732 mm")),
    Sketcher.Constraint("DistanceY", 5, 3, -1, 1, Q("177.288798 mm")),
    Sketcher.Constraint("DistanceX", -1, 1, 9, 3, Q("23.471698 mm")),
    Sketcher.Constraint("DistanceX", -1, 1, 27, 3, Q("19.314602 mm")),
    Sketcher.Constraint("DistanceY", 29, 3, -1, 1, Q("142.9368 mm")),
    Sketcher.Constraint("DistanceX", -1, 1, 37, 3, Q("44.3581 mm")),
    Sketcher.Constraint("DistanceY", 11, 1, -1, 1, Q("140.1789 mm")),
    Sketcher.Constraint("DistanceY", 12, 1, -1, 1, Q("184.615499 mm")),
    Sketcher.Constraint("DistanceX", -1, 1, 0, 3, Q("33.244381 mm")),
    Sketcher.Constraint("DistanceX", -1, 1, 1, 3, Q("7.710881 mm")),
    Sketcher.Constraint("DistanceY", 3, 3, -1, 1, Q("167.059992 mm")),
    Sketcher.Constraint("DistanceX", -1, 1, 15, 3, Q("53.520821 mm")),
    Sketcher.Constraint("DistanceY", 21, 3, -1, 1, Q("136.251761 mm")),
    Sketcher.Constraint("DistanceX", -1, 1, 23, 3, Q("35.474039 mm")),
    Sketcher.Constraint("DistanceX", -1, 1, 35, 3, Q("44.482058 mm")),
    Sketcher.Constraint("DistanceX", -1, 1, 45, 3, Q("30.761849 mm")),
    Sketcher.Constraint("DistanceY", 16, 1, -1, 1, Q("159.63395 mm")),
    Sketcher.Constraint("DistanceX", -1, 1, 41, 1, Q("21.781481 mm")),
])
pocket4 = body.newObject("PartDesign::Pocket", "Pocket003")
pocket4.Profile = sketch5
pocket4.Length = 28
pocket4.Reversed = True
doc.recompute()

fillet = body.newObject("PartDesign::Fillet", "Fillet")
fillet.Base = (pocket4, edges_at(pocket4, [(55.5, 30, 0)]))
fillet.Radius = 2

doc.recompute()
